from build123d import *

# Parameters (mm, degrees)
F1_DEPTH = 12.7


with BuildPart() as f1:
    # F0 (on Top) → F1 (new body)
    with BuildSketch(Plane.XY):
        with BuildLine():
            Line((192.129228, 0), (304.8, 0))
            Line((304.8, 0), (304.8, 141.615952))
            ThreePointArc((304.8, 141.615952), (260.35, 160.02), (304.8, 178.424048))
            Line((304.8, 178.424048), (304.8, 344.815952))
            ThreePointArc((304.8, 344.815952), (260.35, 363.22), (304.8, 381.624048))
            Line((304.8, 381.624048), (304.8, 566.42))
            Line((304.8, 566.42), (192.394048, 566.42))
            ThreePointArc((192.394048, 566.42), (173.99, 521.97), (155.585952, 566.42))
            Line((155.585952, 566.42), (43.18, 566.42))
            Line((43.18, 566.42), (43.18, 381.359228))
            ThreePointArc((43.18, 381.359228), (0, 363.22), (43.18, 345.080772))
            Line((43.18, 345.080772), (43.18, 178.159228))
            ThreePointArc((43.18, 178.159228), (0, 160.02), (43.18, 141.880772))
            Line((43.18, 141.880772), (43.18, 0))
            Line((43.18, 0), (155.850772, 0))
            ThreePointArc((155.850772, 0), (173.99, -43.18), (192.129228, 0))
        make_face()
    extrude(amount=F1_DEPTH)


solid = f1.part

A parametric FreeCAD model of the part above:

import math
import FreeCAD as App
import Part
import Sketcher

V = App.Vector
Q = App.Units.Quantity

doc = App.newDocument("Part")
body = doc.addObject("PartDesign::Body", "Body")

# Sketch on XY plane
sketch1 = body.newObject("Sketcher::SketchObject", "Sketch")
sketch1.AttachmentSupport = (doc.getObject("XY_Plane"), [""])
sketch1.MapMode = "FlatFace"
sketch1.addGeometry([
    Part.LineSegment(V(192, 0, 0), V(305, 0, 0)),  # 0
    Part.LineSegment(V(305, 0, 0), V(305, 142, 0)),  # 1
    Part.ArcOfCircle(Part.Circle(V(286, 160, 0), V(0, 0, 1), 26), math.radians(45), math.radians(315)),  # 2
    Part.LineSegment(V(305, 178, 0), V(305, 345, 0)),  # 3
    Part.ArcOfCircle(Part.Circle(V(286, 363, 0), V(0, 0, 1), 26), math.radians(45), math.radians(315)),  # 4
    Part.LineSegment(V(305, 382, 0), V(305, 566, 0)),  # 5
    Part.LineSegment(V(305, 566, 0), V(192, 566, 0)),  # 6
    Part.ArcOfCircle(Part.Circle(V(174, 548, 0), V(0, 0, 1), 26), math.radians(135), math.radians(405)),  # 7
    Part.LineSegment(V(156, 566, 0), V(43, 566, 0)),  # 8
    Part.LineSegment(V(43, 566, 0), V(43, 381, 0)),  # 9
    Part.ArcOfCircle(Part.Circle(V(25, 363, 0), V(0, 0, 1), 25), math.radians(46), math.radians(314)),  # 10
    Part.LineSegment(V(43, 345, 0), V(43, 178, 0)),  # 11
    Part.ArcOfCircle(Part.Circle(V(25, 160, 0), V(0, 0, 1), 25), math.radians(46), math.radians(314)),  # 12
    Part.LineSegment(V(43, 142, 0), V(43, 0, 0)),  # 13
    Part.LineSegment(V(43, 0, 0), V(156, 0, 0)),  # 14
    Part.ArcOfCircle(Part.Circle(V(174, -18, 0), V(0, 0, 1), 25), math.radians(136), math.radians(404)),  # 15
], False)
sketch1.addConstraint([
    Sketcher.Constraint("Coincident", 0, 2, 1, 1),
    Sketcher.Constraint("Coincident", 1, 2, 2, 2),
    Sketcher.Constraint("Coincident", 2, 1, 3, 1),
    Sketcher.Constraint("Coincident", 3, 2, 4, 2),
    Sketcher.Constraint("Coincident", 4, 1, 5, 1),
    Sketcher.Constraint("Coincident", 5, 2, 6, 1),
    Sketcher.Constraint("Coincident", 6, 2, 7, 2),
    Sketcher.Constraint("Coincident", 7, 1, 8, 1),
    Sketcher.Constraint("Coincident", 8, 2, 9, 1),
    Sketcher.Constraint("Coincident", 9, 2, 10, 1),
    Sketcher.Constraint("Coincident", 10, 2, 11, 1),
    Sketcher.Constraint("Coincident", 11, 2, 12, 1),
    Sketcher.Constraint("Coincident", 12, 2, 13, 1),
    Sketcher.Constraint("Coincident", 13, 2, 14, 1),
    Sketcher.Constraint("Coincident", 14, 2, 15, 1),
    Sketcher.Constraint("Coincident", 15, 2, 0, 1),
    Sketcher.Constraint("Horizontal", 0),
    Sketcher.Constraint("Vertical", 1),
    Sketcher.Constraint("Vertical", 3),
    Sketcher.Constraint("Vertical", 5),
    Sketcher.Constraint("Horizontal", 6),
    Sketcher.Constraint("Horizontal", 8),
    Sketcher.Constraint("Vertical", 9),
    Sketcher.Constraint("Vertical", 11),
    Sketcher.Constraint("Vertical", 13),
    Sketcher.Constraint("Horizontal", 14),
    Sketcher.Constraint("Equal", 2, 4),
    Sketcher.Constraint("Equal", 4, 7),
    Sketcher.Constraint("Equal", 10, 12),
    Sketcher.Constraint("Equal", 12, 15),
    Sketcher.Constraint("PointOnObject", 0, 2, -1),
    Sketcher.Constraint("PointOnObject", 13, 2, -1),
    Sketcher.Constraint("Horizontal", 4, 3, 10, 3),
    Sketcher.Constraint("Horizontal", 2, 3, 12, 3),
    Sketcher.Constraint("Horizontal", 6, 2, 7, 1),
    Sketcher.Constraint("Vertical", 2, 3, 4, 3),
    Sketcher.Constraint("Vertical", 10, 3, 12, 3),
    Sketcher.Constraint("Vertical", 7, 3, 15, 3),
    Sketcher.Constraint("Vertical", 1, 2, 2, 1),
    Sketcher.Constraint("Vertical", 3, 2, 4, 1),
    Sketcher.Constraint("Vertical", 9, 2, 10, 2),
    Sketcher.Constraint("Vertical", 11, 2, 12, 2),
    Sketcher.Constraint("Equal", 6, 8),
    Sketcher.Constraint("Radius", 10, Q("1 in")),
    Sketcher.Constraint("DistanceX", -1, 1, 10, 3, Q("1 in")),
    Sketcher.Constraint("DistanceX", -1, 1, 0, 2, Q("12 in")),
    Sketcher.Constraint("Radius", 2, Q("1.025 in")),
    Sketcher.Constraint("DistanceY", 2, 3, 4, 3, Q("8 in")),
    Sketcher.Constraint("DistanceY", 15, 3, 2, 3, Q("7 in")),
    Sketcher.Constraint("DistanceY", 4, 3, 5, 2, Q("8 in")),
    Sketcher.Constraint("DistanceY", -1, 1, 2, 3, Q("6.3 in")),
    Sketcher.Constraint("DistanceX", -1, 1, 8, 2, Q("1.7 in")),
    Sketcher.Constraint("DistanceX", -1, 1, 2, 3, Q("11.275 in")),
    Sketcher.Constraint("DistanceY", -1, 1, 7, 3, Q("21.575 in")),
])
pad1 = body.newObject("PartDesign::Pad", "Pad")
pad1.Profile = sketch1
pad1.Length = Q("0.5 in")

doc.recompute()
